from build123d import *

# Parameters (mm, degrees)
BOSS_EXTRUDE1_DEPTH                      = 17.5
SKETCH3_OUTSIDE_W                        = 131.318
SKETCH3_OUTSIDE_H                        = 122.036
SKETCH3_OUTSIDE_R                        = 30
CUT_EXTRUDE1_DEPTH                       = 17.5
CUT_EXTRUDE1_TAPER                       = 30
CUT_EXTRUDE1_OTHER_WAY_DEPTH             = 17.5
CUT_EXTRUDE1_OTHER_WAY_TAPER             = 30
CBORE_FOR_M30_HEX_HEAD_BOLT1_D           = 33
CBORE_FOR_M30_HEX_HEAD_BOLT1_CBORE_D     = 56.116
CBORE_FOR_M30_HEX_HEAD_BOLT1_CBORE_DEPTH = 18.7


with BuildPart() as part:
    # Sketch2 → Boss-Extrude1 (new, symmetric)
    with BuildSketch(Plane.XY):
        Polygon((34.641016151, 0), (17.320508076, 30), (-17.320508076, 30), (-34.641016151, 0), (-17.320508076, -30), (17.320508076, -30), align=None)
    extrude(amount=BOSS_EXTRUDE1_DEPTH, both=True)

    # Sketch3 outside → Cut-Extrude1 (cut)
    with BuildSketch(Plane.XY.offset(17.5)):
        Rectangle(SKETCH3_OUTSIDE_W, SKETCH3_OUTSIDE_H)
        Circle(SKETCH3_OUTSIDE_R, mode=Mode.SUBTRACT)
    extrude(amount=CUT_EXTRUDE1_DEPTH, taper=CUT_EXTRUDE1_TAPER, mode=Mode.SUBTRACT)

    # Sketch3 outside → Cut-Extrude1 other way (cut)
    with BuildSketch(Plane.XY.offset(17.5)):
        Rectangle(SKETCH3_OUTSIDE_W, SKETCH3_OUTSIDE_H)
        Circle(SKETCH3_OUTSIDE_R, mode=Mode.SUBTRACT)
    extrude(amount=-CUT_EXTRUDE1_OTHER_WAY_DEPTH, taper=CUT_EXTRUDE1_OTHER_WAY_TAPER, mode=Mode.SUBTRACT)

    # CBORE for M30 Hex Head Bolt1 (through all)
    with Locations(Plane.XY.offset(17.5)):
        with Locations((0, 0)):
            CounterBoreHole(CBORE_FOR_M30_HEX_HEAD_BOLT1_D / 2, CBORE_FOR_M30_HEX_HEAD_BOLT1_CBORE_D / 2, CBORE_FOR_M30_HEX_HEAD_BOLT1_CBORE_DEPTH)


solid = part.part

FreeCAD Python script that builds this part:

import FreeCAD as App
import Part
import Sketcher
Q = App.Units.Quantity

doc = App.newDocument("Part")
body = doc.addObject("PartDesign::Body", "Body")

# Sketch on XY plane
sketch1 = doc.addObject("Sketcher::SketchObject", "Sketch")
body.addObject(sketch1)
sketch1.AttachmentSupport = (doc.XY_Plane, [""])
sketch1.MapMode = "FlatFace"
sketch1.addGeometry([
    Part.LineSegment(App.Vector(35, 0, 0), App.Vector(17, 30, 0)),  # 0
    Part.LineSegment(App.Vector(17, 30, 0), App.Vector(-17, 30, 0)),  # 1
    Part.LineSegment(App.Vector(-17, 30, 0), App.Vector(-35, 0, 0)),  # 2
    Part.LineSegment(App.Vector(-35, 0, 0), App.Vector(-17, -30, 0)),  # 3
    Part.LineSegment(App.Vector(-17, -30, 0), App.Vector(17, -30, 0)),  # 4
    Part.LineSegment(App.Vector(17, -30, 0), App.Vector(35, 0, 0)),  # 5
], False)
sketch1.addConstraint([
    Sketcher.Constraint("Coincident", 0, 2, 1, 1),
    Sketcher.Constraint("Coincident", 1, 2, 2, 1),
    Sketcher.Constraint("Coincident", 2, 2, 3, 1),
    Sketcher.Constraint("Coincident", 3, 2, 4, 1),
    Sketcher.Constraint("Coincident", 4, 2, 5, 1),
    Sketcher.Constraint("Coincident", 5, 2, 0, 1),
    Sketcher.Constraint("Horizontal", 1),
    Sketcher.Constraint("Horizontal", 4),
    Sketcher.Constraint("Symmetric", 0, 2, 3, 2, -1, 1),
    Sketcher.Constraint("Symmetric", 2, 2, 5, 2, -1, 1),
    Sketcher.Constraint("PointOnObject", 2, 2, -1),
    Sketcher.Constraint("Parallel", 2, 5),
    Sketcher.Constraint("Vertical", 1, 2, 3, 2),
    Sketcher.Constraint("Angle", 0, Q("120 deg")),
    Sketcher.Constraint("DistanceY", -1, 1, 0, 2, 30.0),
    Sketcher.Constraint("DistanceX", 1, 2, 1, 1, 34.641016),
])
pad1 = doc.addObject("PartDesign::Pad", "Pad")
body.addObject(pad1)
pad1.Profile = sketch1
pad1.Length = 35
pad1.Midplane = True

# Sketch on XY plane
sketch2 = doc.addObject("Sketcher::SketchObject", "Sketch001")
body.addObject(sketch2)
sketch2.AttachmentSupport = (doc.XY_Plane, [""])
sketch2.MapMode = "FlatFace"
sketch2.AttachmentOffset = App.Placement(App.Vector(0, 0, 17.5), App.Rotation())
sketch2.addGeometry([
    Part.LineSegment(App.Vector(-66, 61, 0), App.Vector(-66, -61, 0)),  # 0
    Part.LineSegment(App.Vector(-66, -61, 0), App.Vector(66, -61, 0)),  # 1
    Part.LineSegment(App.Vector(66, -61, 0), App.Vector(66, 61, 0)),  # 2
    Part.LineSegment(App.Vector(66, 61, 0), App.Vector(-66, 61, 0)),  # 3
    Part.Circle(App.Vector(0, 0, 0), App.Vector(0, 0, 1), 30),  # 4
], False)
sketch2.addConstraint([
    Sketcher.Constraint("Coincident", 0, 2, 1, 1),
    Sketcher.Constraint("Coincident", 1, 2, 2, 1),
    Sketcher.Constraint("Coincident", 2, 2, 3, 1),
    Sketcher.Constraint("Coincident", 3, 2, 0, 1),
    Sketcher.Constraint("Vertical", 0),
    Sketcher.Constraint("Horizontal", 1),
    Sketcher.Constraint("Vertical", 2),
    Sketcher.Constraint("Horizontal", 3),
    Sketcher.Constraint("Coincident", 4, 3, -1, 1),
    Sketcher.Constraint("Symmetric", 0, 2, 2, 2, -1, 1),
    Sketcher.Constraint("Diameter", 4, 60.0),
    Sketcher.Constraint("DistanceX", 1, 1, 1, 2, 131.318),
    Sketcher.Constraint("DistanceY", 0, 2, 0, 1, 122.036),
])
pocket1 = doc.addObject("PartDesign::Pocket", "Pocket")
body.addObject(pocket1)
pocket1.Profile = sketch2
pocket1.Length = 17.5
pocket1.Reversed = True
pocket1.TaperAngle = -30

# Sketch on XY plane
sketch3 = doc.addObject("Sketcher::SketchObject", "Sketch002")
body.addObject(sketch3)
sketch3.AttachmentSupport = (doc.XY_Plane, [""])
sketch3.MapMode = "FlatFace"
sketch3.AttachmentOffset = App.Placement(App.Vector(0, 0, 17.5), App.Rotation())
sketch3.addGeometry([
    Part.LineSegment(App.Vector(-66, 61, 0), App.Vector(-66, -61, 0)),  # 0
    Part.LineSegment(App.Vector(-66, -61, 0), App.Vector(66, -61, 0)),  # 1
    Part.LineSegment(App.Vector(66, -61, 0), App.Vector(66, 61, 0)),  # 2
    Part.LineSegment(App.Vector(66, 61, 0), App.Vector(-66, 61, 0)),  # 3
    Part.Circle(App.Vector(0, 0, 0), App.Vector(0, 0, 1), 30),  # 4
], False)
sketch3.addConstraint([
    Sketcher.Constraint("Coincident", 0, 2, 1, 1),
    Sketcher.Constraint("Coincident", 1, 2, 2, 1),
    Sketcher.Constraint("Coincident", 2, 2, 3, 1),
    Sketcher.Constraint("Coincident", 3, 2, 0, 1),
    Sketcher.Constraint("Vertical", 0),
    Sketcher.Constraint("Horizontal", 1),
    Sketcher.Constraint("Vertical", 2),
    Sketcher.Constraint("Horizontal", 3),
    Sketcher.Constraint("Coincident", 4, 3, -1, 1),
    Sketcher.Constraint("Symmetric", 0, 2, 2, 2, -1, 1),
    Sketcher.Constraint("Diameter", 4, 60.0),
    Sketcher.Constraint("DistanceX", 1, 1, 1, 2, 131.318),
    Sketcher.Constraint("DistanceY", 0, 2, 0, 1, 122.036),
])
pocket2 = doc.addObject("PartDesign::Pocket", "Pocket001")
body.addObject(pocket2)
pocket2.Profile = sketch3
pocket2.Length = 17.5
pocket2.TaperAngle = 30

# Sketch on XY plane
sketch4 = doc.addObject("Sketcher::SketchObject", "Sketch003")
body.addObject(sketch4)
sketch4.AttachmentSupport = (doc.XY_Plane, [""])
sketch4.MapMode = "FlatFace"
sketch4.AttachmentOffset = App.Placement(App.Vector(0, 0, 17.5), App.Rotation())
sketch4.addGeometry(Part.Circle(App.Vector(0, 0, 0), App.Vector(0, 0, 1), 16), False)
sketch4.addConstraint([
    Sketcher.Constraint("Coincident", 0, 3, -1, 1),
    Sketcher.Constraint("Diameter", 0, 33.0),
])
doc.recompute()
hole = doc.addObject("PartDesign::Hole", "Hole")
body.addObject(hole)
hole.Profile = sketch4
hole.ThreadType = "None"
hole.Diameter = 33
hole.DepthType = "ThroughAll"
hole.HoleCutType = "Counterbore"
hole.HoleCutDiameter = 56.116
hole.HoleCutDepth = 18.7

doc.recompute()
